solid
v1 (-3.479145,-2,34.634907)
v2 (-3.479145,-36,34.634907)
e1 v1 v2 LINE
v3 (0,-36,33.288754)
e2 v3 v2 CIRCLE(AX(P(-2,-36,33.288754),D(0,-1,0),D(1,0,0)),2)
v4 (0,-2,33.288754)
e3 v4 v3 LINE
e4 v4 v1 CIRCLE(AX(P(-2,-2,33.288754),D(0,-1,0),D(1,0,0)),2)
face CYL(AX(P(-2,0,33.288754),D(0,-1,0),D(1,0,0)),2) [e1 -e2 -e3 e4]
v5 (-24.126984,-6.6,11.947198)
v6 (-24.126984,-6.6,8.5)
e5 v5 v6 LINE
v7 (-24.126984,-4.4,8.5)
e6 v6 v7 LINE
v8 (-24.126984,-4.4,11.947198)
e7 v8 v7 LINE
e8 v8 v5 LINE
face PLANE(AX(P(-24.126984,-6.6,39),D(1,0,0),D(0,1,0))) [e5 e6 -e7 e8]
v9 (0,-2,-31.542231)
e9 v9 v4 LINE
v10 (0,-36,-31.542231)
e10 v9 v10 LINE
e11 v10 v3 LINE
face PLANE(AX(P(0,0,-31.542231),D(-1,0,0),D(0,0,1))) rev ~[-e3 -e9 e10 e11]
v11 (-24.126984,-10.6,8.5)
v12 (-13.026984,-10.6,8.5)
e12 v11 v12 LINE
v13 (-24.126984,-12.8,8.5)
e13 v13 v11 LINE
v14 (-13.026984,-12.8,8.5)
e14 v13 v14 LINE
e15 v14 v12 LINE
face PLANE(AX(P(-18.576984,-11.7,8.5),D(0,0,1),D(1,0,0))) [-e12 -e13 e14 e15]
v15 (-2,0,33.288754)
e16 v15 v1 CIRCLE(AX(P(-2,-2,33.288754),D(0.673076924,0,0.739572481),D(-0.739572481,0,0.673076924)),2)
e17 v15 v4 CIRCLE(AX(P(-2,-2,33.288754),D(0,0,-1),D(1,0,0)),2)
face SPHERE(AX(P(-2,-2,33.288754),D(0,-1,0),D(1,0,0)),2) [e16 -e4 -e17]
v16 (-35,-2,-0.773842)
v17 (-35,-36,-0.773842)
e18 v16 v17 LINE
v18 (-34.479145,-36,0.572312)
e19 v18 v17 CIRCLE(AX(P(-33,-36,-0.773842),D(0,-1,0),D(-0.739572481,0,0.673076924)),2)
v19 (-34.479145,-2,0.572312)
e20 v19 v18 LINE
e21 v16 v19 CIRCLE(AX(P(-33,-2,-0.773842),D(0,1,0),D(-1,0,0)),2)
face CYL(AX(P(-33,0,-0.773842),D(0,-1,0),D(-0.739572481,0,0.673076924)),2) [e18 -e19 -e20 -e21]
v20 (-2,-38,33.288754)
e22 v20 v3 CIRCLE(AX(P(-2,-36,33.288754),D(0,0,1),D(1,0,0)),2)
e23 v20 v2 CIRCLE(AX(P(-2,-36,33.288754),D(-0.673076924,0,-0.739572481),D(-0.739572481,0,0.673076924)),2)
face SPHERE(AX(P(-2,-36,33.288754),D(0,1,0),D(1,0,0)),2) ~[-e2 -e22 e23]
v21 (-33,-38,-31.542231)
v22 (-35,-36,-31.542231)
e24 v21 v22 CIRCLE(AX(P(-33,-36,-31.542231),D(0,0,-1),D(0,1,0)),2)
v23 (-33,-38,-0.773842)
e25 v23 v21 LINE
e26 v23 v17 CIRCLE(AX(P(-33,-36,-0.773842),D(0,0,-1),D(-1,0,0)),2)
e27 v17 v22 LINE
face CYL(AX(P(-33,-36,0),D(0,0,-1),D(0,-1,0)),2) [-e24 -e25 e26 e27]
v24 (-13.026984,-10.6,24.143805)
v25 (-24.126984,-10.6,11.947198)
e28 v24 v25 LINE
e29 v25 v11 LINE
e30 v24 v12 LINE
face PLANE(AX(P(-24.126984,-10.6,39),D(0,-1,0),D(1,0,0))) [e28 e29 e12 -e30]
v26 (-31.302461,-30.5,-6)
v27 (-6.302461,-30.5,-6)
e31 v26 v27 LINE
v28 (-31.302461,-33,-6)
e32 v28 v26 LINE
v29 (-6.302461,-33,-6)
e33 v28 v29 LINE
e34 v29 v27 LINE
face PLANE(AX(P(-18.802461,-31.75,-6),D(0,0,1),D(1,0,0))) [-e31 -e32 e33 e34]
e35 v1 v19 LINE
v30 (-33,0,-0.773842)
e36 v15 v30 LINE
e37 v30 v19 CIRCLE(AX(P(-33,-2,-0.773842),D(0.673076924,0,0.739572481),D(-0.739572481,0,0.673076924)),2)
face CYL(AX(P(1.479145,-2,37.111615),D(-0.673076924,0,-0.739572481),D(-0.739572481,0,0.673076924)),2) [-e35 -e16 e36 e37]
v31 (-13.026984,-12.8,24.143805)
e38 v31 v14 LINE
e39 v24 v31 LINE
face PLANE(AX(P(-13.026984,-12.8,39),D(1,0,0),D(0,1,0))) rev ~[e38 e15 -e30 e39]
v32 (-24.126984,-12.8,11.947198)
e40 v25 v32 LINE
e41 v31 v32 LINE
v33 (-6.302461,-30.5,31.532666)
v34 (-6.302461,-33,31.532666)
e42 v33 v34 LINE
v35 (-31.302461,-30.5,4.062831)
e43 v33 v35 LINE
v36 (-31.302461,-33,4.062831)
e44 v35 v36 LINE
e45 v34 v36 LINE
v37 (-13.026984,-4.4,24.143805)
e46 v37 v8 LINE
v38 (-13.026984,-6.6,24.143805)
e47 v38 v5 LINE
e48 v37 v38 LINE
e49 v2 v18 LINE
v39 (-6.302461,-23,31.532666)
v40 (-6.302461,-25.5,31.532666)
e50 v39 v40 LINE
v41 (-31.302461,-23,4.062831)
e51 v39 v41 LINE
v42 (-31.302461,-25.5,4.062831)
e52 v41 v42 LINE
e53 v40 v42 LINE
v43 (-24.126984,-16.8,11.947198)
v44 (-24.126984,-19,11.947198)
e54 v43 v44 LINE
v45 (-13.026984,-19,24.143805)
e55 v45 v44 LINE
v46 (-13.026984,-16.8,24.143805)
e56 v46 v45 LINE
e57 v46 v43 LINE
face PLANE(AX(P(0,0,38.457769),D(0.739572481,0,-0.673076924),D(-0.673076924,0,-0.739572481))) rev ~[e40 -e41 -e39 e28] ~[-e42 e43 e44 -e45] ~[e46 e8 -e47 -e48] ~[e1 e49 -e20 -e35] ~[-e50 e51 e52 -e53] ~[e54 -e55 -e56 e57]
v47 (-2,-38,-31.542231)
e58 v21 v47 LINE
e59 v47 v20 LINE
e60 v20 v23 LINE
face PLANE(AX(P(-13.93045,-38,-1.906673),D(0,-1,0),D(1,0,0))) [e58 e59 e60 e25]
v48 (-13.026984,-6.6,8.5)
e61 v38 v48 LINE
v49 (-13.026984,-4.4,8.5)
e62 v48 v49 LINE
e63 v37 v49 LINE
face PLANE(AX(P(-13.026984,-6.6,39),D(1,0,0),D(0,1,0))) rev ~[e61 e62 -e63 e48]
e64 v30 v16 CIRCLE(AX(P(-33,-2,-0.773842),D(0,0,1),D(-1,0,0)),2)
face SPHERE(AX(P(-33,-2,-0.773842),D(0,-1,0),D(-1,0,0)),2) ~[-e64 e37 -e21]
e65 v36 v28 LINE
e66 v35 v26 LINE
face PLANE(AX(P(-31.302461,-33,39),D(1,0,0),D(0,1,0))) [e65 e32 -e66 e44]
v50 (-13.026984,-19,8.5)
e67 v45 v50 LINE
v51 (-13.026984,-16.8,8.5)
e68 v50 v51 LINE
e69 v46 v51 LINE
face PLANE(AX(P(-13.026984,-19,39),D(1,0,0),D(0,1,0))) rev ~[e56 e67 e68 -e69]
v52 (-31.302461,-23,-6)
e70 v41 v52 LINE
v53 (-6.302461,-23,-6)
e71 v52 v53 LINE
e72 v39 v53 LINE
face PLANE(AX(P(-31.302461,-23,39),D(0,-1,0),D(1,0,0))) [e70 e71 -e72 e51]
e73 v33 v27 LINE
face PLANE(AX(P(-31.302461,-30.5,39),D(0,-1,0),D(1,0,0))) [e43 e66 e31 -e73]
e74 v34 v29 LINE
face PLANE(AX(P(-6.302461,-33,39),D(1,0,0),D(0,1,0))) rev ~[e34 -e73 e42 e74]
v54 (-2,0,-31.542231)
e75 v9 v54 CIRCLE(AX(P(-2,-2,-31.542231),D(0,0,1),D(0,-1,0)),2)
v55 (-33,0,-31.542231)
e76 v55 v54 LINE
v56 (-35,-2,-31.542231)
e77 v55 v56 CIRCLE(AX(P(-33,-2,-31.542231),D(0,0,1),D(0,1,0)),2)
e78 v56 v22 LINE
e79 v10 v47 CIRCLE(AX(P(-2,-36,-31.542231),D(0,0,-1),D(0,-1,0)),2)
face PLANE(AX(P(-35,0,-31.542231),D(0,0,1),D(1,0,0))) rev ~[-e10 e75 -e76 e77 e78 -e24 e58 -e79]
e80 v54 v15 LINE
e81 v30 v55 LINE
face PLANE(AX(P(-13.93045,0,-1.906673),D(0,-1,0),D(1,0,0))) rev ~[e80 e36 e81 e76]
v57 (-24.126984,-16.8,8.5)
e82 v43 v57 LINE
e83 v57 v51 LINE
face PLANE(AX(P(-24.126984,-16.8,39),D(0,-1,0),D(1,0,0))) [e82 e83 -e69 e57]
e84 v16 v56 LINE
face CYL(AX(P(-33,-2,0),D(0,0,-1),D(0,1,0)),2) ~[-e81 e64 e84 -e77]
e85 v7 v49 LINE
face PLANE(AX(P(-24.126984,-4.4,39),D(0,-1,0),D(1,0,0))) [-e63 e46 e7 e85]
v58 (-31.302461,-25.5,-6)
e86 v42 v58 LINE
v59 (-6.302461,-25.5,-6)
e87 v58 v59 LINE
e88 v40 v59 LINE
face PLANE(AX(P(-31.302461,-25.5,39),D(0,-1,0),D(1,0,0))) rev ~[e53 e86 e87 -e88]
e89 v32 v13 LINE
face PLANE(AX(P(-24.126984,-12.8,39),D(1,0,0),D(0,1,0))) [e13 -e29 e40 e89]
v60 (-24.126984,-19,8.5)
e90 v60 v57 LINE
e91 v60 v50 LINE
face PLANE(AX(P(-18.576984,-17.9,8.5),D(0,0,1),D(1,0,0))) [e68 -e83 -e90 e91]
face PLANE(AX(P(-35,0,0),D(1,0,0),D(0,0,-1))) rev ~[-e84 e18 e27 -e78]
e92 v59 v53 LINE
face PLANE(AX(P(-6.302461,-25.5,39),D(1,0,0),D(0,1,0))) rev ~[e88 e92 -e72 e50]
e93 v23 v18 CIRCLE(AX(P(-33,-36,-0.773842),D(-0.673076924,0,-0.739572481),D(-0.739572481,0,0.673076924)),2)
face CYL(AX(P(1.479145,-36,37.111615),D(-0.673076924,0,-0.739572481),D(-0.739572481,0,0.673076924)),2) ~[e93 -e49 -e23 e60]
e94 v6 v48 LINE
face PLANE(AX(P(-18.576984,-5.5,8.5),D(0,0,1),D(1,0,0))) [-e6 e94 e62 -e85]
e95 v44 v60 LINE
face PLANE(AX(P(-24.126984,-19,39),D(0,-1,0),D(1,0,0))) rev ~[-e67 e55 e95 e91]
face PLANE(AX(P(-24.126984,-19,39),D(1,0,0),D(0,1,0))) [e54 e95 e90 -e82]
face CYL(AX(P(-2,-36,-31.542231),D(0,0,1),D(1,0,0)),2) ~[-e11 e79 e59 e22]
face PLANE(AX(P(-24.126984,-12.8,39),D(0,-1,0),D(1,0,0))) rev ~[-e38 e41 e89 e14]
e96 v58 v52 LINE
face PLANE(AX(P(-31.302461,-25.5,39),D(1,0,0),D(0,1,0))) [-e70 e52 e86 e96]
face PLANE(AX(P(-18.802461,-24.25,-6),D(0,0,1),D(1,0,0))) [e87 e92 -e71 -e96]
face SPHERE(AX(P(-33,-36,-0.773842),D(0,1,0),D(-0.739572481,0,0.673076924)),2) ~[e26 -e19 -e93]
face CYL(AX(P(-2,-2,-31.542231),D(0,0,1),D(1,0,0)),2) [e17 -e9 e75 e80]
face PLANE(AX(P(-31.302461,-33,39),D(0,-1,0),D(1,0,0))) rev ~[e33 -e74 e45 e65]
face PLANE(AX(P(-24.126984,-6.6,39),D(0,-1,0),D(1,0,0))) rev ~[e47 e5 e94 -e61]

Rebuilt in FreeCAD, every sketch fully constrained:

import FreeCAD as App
import Part
import Sketcher

V = App.Vector


def edges_at(feature, points):
    """Names of the edges that pass closest to the given points."""
    edges = feature.Shape.Edges
    near = lambda p: min(range(len(edges)), key=lambda i: edges[i].distToShape(Part.Vertex(*p))[0])
    return sorted({f"Edge{near(p) + 1}" for p in points})

doc = App.newDocument("Part")
body = doc.addObject("PartDesign::Body", "Body")

# Sketch on XZ plane
sketch1 = body.newObject("Sketcher::SketchObject", "Sketch")
sketch1.AttachmentSupport = (doc.getObject("XZ_Plane"), [""])
sketch1.MapMode = "FlatFace"
sketch1.addGeometry(Part.LineSegment(V(0, -32, 0), V(0, 38, 0)), False)
sketch1.addGeometry(Part.LineSegment(V(0, 38, 0), V(-35, 0, 0)), False)
sketch1.addGeometry(Part.LineSegment(V(-35, 0, 0), V(-35, -32, 0)), False)
sketch1.addGeometry(Part.LineSegment(V(-35, -32, 0), V(0, -32, 0)), False)
sketch1.addConstraint(Sketcher.Constraint("Coincident", 0, 2, 1, 1))
sketch1.addConstraint(Sketcher.Constraint("Coincident", 1, 2, 2, 1))
sketch1.addConstraint(Sketcher.Constraint("Coincident", 2, 2, 3, 1))
sketch1.addConstraint(Sketcher.Constraint("Coincident", 3, 2, 0, 1))
sketch1.addConstraint(Sketcher.Constraint("Vertical", 0))
sketch1.addConstraint(Sketcher.Constraint("Vertical", 2))
sketch1.addConstraint(Sketcher.Constraint("Horizontal", 3))
sketch1.addConstraint(Sketcher.Constraint("PointOnObject", 0, 2, -2))
sketch1.addConstraint(Sketcher.Constraint("PointOnObject", 1, 2, -1))
sketch1.addConstraint(Sketcher.Constraint("DistanceX", 3, 1, 3, 2, 35.0))
sketch1.addConstraint(Sketcher.Constraint("DistanceY", 0, 1, 0, 2, 70.0))
sketch1.addConstraint(Sketcher.Constraint("Distance", 1, 52.0))
pad1 = body.newObject("PartDesign::Pad", "Pad")
pad1.Profile = sketch1
pad1.Length = 38

# Sketch on XY plane
sketch2 = body.newObject("Sketcher::SketchObject", "Sketch001")
sketch2.AttachmentSupport = (doc.getObject("XY_Plane"), [""])
sketch2.MapMode = "FlatFace"
sketch2.AttachmentOffset = App.Placement(V(0, 0, 39), App.Rotation())
sketch2.addGeometry(Part.LineSegment(V(-31.3, -30.5, 0), V(-31.3, -33, 0)), False)
sketch2.addGeometry(Part.LineSegment(V(-31.3, -33, 0), V(-6.3, -33, 0)), False)
sketch2.addGeometry(Part.LineSegment(V(-6.3, -33, 0), V(-6.3, -30.5, 0)), False)
sketch2.addGeometry(Part.LineSegment(V(-6.3, -30.5, 0), V(-31.3, -30.5, 0)), False)
sketch2.addGeometry(Part.LineSegment(V(-31.3, -23, 0), V(-31.3, -25.5, 0)), False)
sketch2.addGeometry(Part.LineSegment(V(-31.3, -25.5, 0), V(-6.3, -25.5, 0)), False)
sketch2.addGeometry(Part.LineSegment(V(-6.3, -25.5, 0), V(-6.3, -23, 0)), False)
sketch2.addGeometry(Part.LineSegment(V(-6.3, -23, 0), V(-31.3, -23, 0)), False)
sketch2.addConstraint(Sketcher.Constraint("Coincident", 0, 2, 1, 1))
sketch2.addConstraint(Sketcher.Constraint("Coincident", 1, 2, 2, 1))
sketch2.addConstraint(Sketcher.Constraint("Coincident", 2, 2, 3, 1))
sketch2.addConstraint(Sketcher.Constraint("Coincident", 3, 2, 0, 1))
sketch2.addConstraint(Sketcher.Constraint("Coincident", 4, 2, 5, 1))
sketch2.addConstraint(Sketcher.Constraint("Coincident", 5, 2, 6, 1))
sketch2.addConstraint(Sketcher.Constraint("Coincident", 6, 2, 7, 1))
sketch2.addConstraint(Sketcher.Constraint("Coincident", 7, 2, 4, 1))
sketch2.addConstraint(Sketcher.Constraint("Vertical", 0))
sketch2.addConstraint(Sketcher.Constraint("Horizontal", 1))
sketch2.addConstraint(Sketcher.Constraint("Vertical", 2))
sketch2.addConstraint(Sketcher.Constraint("Horizontal", 3))
sketch2.addConstraint(Sketcher.Constraint("Vertical", 4))
sketch2.addConstraint(Sketcher.Constraint("Horizontal", 5))
sketch2.addConstraint(Sketcher.Constraint("Vertical", 6))
sketch2.addConstraint(Sketcher.Constraint("Horizontal", 7))
sketch2.addConstraint(Sketcher.Constraint("Vertical", 3, 2, 4, 2))
sketch2.addConstraint(Sketcher.Constraint("Vertical", 2, 2, 5, 2))
sketch2.addConstraint(Sketcher.Constraint("Equal", 2, 4))
sketch2.addConstraint(Sketcher.Constraint("DistanceX", 1, 1, 1, 2, 25.0))
sketch2.addConstraint(Sketcher.Constraint("DistanceY", 0, 2, 0, 1, 2.5))
sketch2.addConstraint(Sketcher.Constraint("DistanceY", 0, 2, -1, 1, 33.0))
sketch2.addConstraint(Sketcher.Constraint("DistanceY", 6, 2, -1, 1, 23.0))
sketch2.addConstraint(Sketcher.Constraint("DistanceX", 0, 2, -1, 1, 31.302461))
pocket1 = body.newObject("PartDesign::Pocket", "Pocket")
pocket1.Profile = sketch2
pocket1.Length = 45

# Sketch on XY plane
sketch3 = body.newObject("Sketcher::SketchObject", "Sketch002")
sketch3.AttachmentSupport = (doc.getObject("XY_Plane"), [""])
sketch3.MapMode = "FlatFace"
sketch3.AttachmentOffset = App.Placement(V(0, 0, 39), App.Rotation())
sketch3.addGeometry(Part.LineSegment(V(-24.1, -10.6, 0), V(-24.1, -12.8, 0)), False)
sketch3.addGeometry(Part.LineSegment(V(-24.1, -12.8, 0), V(-13, -12.8, 0)), False)
sketch3.addGeometry(Part.LineSegment(V(-13, -12.8, 0), V(-13, -10.6, 0)), False)
sketch3.addGeometry(Part.LineSegment(V(-13, -10.6, 0), V(-24.1, -10.6, 0)), False)
sketch3.addGeometry(Part.LineSegment(V(-24.1, -16.8, 0), V(-24.1, -19, 0)), False)
sketch3.addGeometry(Part.LineSegment(V(-24.1, -19, 0), V(-13, -19, 0)), False)
sketch3.addGeometry(Part.LineSegment(V(-13, -19, 0), V(-13, -16.8, 0)), False)
sketch3.addGeometry(Part.LineSegment(V(-13, -16.8, 0), V(-24.1, -16.8, 0)), False)
sketch3.addGeometry(Part.LineSegment(V(-24.1, -4.4, 0), V(-24.1, -6.6, 0)), False)
sketch3.addGeometry(Part.LineSegment(V(-24.1, -6.6, 0), V(-13, -6.6, 0)), False)
sketch3.addGeometry(Part.LineSegment(V(-13, -6.6, 0), V(-13, -4.4, 0)), False)
sketch3.addGeometry(Part.LineSegment(V(-13, -4.4, 0), V(-24.1, -4.4, 0)), False)
sketch3.addConstraint(Sketcher.Constraint("Coincident", 0, 2, 1, 1))
sketch3.addConstraint(Sketcher.Constraint("Coincident", 1, 2, 2, 1))
sketch3.addConstraint(Sketcher.Constraint("Coincident", 2, 2, 3, 1))
sketch3.addConstraint(Sketcher.Constraint("Coincident", 3, 2, 0, 1))
sketch3.addConstraint(Sketcher.Constraint("Coincident", 4, 2, 5, 1))
sketch3.addConstraint(Sketcher.Constraint("Coincident", 5, 2, 6, 1))
sketch3.addConstraint(Sketcher.Constraint("Coincident", 6, 2, 7, 1))
sketch3.addConstraint(Sketcher.Constraint("Coincident", 7, 2, 4, 1))
sketch3.addConstraint(Sketcher.Constraint("Coincident", 8, 2, 9, 1))
sketch3.addConstraint(Sketcher.Constraint("Coincident", 9, 2, 10, 1))
sketch3.addConstraint(Sketcher.Constraint("Coincident", 10, 2, 11, 1))
sketch3.addConstraint(Sketcher.Constraint("Coincident", 11, 2, 8, 1))
sketch3.addConstraint(Sketcher.Constraint("Vertical", 0))
sketch3.addConstraint(Sketcher.Constraint("Horizontal", 1))
sketch3.addConstraint(Sketcher.Constraint("Vertical", 2))
sketch3.addConstraint(Sketcher.Constraint("Horizontal", 3))
sketch3.addConstraint(Sketcher.Constraint("Vertical", 4))
sketch3.addConstraint(Sketcher.Constraint("Horizontal", 5))
sketch3.addConstraint(Sketcher.Constraint("Vertical", 6))
sketch3.addConstraint(Sketcher.Constraint("Horizontal", 7))
sketch3.addConstraint(Sketcher.Constraint("Vertical", 8))
sketch3.addConstraint(Sketcher.Constraint("Horizontal", 9))
sketch3.addConstraint(Sketcher.Constraint("Vertical", 10))
sketch3.addConstraint(Sketcher.Constraint("Horizontal", 11))
sketch3.addConstraint(Sketcher.Constraint("Vertical", 3, 2, 4, 2))
sketch3.addConstraint(Sketcher.Constraint("Vertical", 2, 2, 5, 2))
sketch3.addConstraint(Sketcher.Constraint("Vertical", 7, 2, 8, 2))
sketch3.addConstraint(Sketcher.Constraint("Vertical", 6, 2, 9, 2))
sketch3.addConstraint(Sketcher.Constraint("Equal", 2, 4))
sketch3.addConstraint(Sketcher.Constraint("Equal", 6, 8))
sketch3.addConstraint(Sketcher.Constraint("DistanceX", 1, 1, 1, 2, 11.1))
sketch3.addConstraint(Sketcher.Constraint("DistanceY", 0, 2, 0, 1, 2.2))
sketch3.addConstraint(Sketcher.Constraint("DistanceY", 4, 2, -1, 1, 19.0))
sketch3.addConstraint(Sketcher.Constraint("DistanceY", 6, 2, 1, 2, 4.0))
sketch3.addConstraint(Sketcher.Constraint("DistanceY", 3, 2, 8, 2, 4.0))
sketch3.addConstraint(Sketcher.Constraint("DistanceX", 0, 2, -1, 1, 24.126984))
pocket2 = body.newObject("PartDesign::Pocket", "Pocket001")
pocket2.Profile = sketch3
pocket2.Length = 30.5
doc.recompute()

fillet = body.newObject("PartDesign::Fillet", "Fillet")
fillet.Base = (pocket2, edges_at(pocket2, [
    (-17.5, 0, 19.229),
    (-35, -19, 0),
    (-17.5, -38, 19.229),
    (0, -19, 38.458),
    (0, 0, 3.458),
    (0, -38, 3.458),
    (-35, 0, -15.771),
    (-35, -38, -15.771),
]))
fillet.Radius = 2

doc.recompute()
